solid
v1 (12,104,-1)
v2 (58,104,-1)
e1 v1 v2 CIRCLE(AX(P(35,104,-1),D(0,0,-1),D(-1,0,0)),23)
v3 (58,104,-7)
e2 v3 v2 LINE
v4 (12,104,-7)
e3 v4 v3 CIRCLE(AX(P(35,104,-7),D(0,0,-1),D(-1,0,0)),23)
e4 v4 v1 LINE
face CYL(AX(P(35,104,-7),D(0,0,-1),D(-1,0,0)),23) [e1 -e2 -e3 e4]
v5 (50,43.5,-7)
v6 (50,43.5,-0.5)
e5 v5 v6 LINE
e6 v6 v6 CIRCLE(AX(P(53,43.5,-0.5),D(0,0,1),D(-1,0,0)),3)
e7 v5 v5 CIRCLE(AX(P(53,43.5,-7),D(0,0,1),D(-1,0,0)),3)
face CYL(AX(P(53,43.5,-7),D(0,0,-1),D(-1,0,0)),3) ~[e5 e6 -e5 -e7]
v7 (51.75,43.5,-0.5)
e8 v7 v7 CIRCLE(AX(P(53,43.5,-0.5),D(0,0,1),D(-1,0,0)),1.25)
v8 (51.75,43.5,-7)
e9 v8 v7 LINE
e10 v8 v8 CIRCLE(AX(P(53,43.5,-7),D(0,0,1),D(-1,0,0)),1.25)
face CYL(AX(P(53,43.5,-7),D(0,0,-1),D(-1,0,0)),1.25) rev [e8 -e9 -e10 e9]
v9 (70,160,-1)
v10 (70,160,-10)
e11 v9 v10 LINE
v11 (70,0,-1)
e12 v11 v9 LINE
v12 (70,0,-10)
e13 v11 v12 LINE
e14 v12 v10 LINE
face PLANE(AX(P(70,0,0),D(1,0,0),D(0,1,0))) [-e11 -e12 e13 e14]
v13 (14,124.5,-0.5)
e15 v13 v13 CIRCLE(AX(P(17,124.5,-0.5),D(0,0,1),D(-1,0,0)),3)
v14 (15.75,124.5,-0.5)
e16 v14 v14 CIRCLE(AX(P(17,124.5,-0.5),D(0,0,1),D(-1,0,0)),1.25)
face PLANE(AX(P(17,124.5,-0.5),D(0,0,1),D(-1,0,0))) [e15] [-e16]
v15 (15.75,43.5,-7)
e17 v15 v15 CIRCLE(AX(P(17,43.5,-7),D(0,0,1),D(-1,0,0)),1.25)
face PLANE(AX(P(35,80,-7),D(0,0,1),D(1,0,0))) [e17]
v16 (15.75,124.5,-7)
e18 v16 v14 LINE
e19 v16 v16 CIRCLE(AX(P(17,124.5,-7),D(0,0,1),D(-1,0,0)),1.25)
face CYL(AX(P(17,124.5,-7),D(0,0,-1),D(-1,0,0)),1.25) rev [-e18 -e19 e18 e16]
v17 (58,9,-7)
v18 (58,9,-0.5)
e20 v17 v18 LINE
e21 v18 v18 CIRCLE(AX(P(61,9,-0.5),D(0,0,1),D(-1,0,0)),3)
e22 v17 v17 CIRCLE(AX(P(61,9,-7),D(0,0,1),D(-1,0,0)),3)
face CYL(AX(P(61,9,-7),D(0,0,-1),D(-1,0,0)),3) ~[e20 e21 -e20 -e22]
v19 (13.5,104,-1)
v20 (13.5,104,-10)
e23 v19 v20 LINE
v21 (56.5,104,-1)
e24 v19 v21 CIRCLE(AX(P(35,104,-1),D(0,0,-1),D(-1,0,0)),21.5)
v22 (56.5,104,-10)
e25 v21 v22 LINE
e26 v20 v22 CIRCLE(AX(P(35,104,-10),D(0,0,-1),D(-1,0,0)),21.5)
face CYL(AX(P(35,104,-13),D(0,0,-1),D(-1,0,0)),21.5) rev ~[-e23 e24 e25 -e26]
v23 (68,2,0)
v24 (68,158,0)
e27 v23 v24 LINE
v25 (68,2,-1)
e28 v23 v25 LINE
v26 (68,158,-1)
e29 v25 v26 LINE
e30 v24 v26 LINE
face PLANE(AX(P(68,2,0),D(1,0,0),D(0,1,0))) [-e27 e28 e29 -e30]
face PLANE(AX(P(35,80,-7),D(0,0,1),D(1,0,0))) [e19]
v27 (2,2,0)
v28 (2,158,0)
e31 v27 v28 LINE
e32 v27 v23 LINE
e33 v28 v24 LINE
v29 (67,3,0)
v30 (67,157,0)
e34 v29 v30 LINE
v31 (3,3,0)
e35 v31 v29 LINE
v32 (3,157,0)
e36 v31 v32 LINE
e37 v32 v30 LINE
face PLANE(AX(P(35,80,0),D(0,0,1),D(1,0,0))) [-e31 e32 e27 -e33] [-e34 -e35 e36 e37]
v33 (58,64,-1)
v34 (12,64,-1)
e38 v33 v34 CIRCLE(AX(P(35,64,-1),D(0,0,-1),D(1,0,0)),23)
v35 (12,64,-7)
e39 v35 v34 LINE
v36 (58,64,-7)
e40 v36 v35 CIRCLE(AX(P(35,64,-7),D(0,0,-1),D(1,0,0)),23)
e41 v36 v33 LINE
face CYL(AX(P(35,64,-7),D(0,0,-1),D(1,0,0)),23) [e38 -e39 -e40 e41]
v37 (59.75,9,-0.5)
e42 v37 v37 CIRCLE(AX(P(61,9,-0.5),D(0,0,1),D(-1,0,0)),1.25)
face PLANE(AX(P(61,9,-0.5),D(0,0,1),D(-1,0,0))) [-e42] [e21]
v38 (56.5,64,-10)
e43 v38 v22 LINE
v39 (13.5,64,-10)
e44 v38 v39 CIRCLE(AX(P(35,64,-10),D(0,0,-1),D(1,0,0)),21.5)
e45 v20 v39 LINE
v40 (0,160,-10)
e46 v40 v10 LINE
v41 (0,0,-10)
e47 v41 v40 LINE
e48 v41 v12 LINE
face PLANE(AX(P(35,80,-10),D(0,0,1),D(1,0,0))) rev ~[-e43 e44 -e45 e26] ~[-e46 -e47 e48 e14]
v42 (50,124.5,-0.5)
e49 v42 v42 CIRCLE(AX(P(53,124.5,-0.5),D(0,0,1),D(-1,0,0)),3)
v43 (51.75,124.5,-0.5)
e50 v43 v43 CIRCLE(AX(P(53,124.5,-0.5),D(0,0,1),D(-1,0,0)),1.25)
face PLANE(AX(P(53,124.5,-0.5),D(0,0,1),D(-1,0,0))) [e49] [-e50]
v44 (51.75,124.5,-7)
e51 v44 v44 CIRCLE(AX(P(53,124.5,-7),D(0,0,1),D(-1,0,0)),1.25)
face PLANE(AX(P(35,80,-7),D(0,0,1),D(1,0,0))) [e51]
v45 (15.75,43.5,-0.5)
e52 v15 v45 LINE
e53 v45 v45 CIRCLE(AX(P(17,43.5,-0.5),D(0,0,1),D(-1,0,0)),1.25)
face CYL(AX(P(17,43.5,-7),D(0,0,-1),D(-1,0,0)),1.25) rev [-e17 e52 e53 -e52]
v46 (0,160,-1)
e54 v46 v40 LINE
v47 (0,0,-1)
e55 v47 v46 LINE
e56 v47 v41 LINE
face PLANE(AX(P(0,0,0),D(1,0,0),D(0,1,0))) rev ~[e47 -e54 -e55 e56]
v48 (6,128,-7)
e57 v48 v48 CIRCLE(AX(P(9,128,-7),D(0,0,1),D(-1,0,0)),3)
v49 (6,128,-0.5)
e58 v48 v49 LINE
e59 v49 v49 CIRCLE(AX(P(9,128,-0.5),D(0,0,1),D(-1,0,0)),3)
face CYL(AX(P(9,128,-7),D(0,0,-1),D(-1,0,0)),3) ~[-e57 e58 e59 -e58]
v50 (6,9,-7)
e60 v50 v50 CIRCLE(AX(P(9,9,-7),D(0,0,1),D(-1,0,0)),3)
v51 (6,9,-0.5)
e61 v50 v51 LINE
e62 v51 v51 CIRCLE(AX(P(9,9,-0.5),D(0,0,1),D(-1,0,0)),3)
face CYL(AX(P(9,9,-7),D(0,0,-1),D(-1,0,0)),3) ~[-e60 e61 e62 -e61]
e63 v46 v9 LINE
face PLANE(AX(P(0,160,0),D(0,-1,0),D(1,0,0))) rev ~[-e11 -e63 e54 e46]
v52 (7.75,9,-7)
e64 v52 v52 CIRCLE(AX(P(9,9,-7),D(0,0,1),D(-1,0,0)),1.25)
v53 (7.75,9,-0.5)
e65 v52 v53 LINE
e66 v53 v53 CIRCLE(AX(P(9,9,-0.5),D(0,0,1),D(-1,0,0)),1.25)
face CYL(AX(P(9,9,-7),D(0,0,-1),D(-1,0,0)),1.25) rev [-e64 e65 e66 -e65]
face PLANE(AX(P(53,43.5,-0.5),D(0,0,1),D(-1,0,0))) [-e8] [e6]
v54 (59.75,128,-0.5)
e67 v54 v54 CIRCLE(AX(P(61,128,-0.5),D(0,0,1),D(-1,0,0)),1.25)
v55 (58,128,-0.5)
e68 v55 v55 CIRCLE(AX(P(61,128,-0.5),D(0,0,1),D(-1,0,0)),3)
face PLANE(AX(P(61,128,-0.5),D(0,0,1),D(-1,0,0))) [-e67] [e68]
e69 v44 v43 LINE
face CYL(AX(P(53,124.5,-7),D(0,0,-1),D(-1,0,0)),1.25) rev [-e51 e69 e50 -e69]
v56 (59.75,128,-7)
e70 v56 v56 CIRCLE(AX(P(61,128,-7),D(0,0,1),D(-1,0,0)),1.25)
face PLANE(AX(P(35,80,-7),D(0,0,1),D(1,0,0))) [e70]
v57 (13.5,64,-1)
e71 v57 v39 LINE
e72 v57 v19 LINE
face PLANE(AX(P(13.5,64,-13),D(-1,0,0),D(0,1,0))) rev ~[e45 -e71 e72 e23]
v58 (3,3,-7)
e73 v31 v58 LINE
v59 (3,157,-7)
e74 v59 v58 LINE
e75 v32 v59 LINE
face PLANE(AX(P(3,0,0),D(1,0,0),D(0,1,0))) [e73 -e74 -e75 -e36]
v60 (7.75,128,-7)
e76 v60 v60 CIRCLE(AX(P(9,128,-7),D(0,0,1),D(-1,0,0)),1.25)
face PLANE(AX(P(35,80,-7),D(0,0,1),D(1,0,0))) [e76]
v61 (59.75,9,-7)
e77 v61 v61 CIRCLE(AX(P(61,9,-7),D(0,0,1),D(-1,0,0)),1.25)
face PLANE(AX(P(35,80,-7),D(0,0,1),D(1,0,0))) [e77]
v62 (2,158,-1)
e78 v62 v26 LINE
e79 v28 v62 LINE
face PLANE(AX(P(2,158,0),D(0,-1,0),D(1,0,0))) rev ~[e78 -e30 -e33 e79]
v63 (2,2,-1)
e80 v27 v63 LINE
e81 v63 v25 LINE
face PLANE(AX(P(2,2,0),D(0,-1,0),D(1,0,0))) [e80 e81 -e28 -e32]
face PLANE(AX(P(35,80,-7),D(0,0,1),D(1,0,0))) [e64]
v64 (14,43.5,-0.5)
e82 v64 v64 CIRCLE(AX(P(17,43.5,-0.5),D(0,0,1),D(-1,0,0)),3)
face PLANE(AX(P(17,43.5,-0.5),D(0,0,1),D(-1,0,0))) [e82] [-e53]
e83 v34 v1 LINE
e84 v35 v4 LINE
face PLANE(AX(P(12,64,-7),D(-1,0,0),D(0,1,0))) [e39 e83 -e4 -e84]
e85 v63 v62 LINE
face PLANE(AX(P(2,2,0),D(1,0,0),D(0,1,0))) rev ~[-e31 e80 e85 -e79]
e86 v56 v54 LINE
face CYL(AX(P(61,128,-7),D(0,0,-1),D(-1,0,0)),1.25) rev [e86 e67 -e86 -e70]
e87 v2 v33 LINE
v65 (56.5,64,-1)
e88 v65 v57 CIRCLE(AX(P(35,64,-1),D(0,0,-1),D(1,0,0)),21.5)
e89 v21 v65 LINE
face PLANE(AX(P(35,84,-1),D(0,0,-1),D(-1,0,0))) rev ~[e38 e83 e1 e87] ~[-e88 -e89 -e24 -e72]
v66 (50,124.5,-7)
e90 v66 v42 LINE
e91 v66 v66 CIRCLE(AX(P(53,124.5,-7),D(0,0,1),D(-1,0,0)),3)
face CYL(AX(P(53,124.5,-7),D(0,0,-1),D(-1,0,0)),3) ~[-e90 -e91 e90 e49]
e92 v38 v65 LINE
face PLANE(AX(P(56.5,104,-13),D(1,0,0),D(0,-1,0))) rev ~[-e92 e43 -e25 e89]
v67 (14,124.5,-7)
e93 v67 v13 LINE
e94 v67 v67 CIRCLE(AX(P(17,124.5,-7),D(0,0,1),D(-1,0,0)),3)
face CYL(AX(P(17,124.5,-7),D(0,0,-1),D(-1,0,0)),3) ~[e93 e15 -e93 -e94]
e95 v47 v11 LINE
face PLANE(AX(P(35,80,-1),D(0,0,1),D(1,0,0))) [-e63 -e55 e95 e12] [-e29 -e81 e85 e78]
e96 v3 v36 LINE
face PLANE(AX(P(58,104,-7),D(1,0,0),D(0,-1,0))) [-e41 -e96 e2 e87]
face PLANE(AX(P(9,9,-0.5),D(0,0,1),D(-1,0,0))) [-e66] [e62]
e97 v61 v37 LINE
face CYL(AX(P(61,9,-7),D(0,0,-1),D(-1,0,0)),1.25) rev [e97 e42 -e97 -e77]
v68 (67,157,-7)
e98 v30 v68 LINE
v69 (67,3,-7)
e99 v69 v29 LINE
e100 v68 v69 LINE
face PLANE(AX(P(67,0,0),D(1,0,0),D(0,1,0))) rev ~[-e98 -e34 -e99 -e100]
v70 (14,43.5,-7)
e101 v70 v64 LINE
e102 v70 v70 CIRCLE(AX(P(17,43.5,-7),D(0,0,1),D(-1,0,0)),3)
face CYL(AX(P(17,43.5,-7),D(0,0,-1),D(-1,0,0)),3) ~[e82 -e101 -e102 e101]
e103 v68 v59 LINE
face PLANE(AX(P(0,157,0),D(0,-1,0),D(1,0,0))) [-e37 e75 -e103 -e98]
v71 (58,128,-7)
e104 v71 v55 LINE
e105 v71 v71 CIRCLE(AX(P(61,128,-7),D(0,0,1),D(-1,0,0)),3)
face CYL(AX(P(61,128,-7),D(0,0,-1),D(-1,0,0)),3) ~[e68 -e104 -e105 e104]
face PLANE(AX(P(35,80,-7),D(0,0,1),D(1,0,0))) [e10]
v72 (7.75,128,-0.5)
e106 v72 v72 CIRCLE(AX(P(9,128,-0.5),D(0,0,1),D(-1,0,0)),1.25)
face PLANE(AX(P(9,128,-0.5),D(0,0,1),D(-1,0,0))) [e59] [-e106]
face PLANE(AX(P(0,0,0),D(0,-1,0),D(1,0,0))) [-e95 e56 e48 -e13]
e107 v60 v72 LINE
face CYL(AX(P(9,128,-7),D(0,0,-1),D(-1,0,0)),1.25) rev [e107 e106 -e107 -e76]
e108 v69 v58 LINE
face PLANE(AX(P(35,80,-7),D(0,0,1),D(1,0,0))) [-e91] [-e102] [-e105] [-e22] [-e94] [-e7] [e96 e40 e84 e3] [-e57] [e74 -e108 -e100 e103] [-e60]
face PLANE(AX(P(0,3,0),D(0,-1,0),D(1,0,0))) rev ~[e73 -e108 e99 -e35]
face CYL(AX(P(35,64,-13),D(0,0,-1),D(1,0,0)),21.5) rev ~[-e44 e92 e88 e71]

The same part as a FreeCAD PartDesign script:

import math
import FreeCAD as App
import Part
import Sketcher
from FreeCAD import Vector
Q = App.Units.Quantity


def faces_at(feature, points):
    """Names of the faces that lie closest to the given points."""
    faces = feature.Shape.Faces
    near = lambda p: min(range(len(faces)), key=lambda i: faces[i].distToShape(Part.Vertex(*p))[0])
    return sorted({f"Face{near(p) + 1}" for p in points})


def add_polygon(sketch, points):
    """Adds a closed chain of lines whose ends are joined by coincident constraints."""
    first, n = sketch.GeometryCount, len(points)
    for a, b in zip(points, points[1:] + points[:1]):
        sketch.addGeometry(Part.LineSegment(App.Vector(*a, 0), App.Vector(*b, 0)), False)
    for i in range(n):
        sketch.addConstraint(Sketcher.Constraint("Coincident", first + i, 2, first + (i + 1) % n, 1))

doc = App.newDocument("Part")
params = doc.addObject("Spreadsheet::Sheet", "Params")
for row, (alias, value) in enumerate([
    ("sketch1_width", "70 mm"),
    ("sketch1_height", "160 mm"),
    ("pad1_length", "10 mm"),
    ("thickness_wall", "3 mm"),
    ("sketch2_width", "70 mm"),
    ("sketch2_width2", "66 mm"),
    ("sketch2_height", "160 mm"),
    ("sketch2_height2", "156 mm"),
    ("pocket1_length", "1 mm"),
    ("sketch3_radius", "23 mm"),
    ("sketch3_radius2", "21.5 mm"),
    ("sketch3_height", "40 mm"),
    ("pad2_length", "6 mm"),
    ("sketch4_radius", "21.5 mm"),
    ("sketch4_height", "40 mm"),
    ("pocket2_length", "6 mm"),
    ("sketch5_diameter", "6 mm"),
    ("sketch5_diameter2", "2.5 mm"),
    ("pad3_length", "6.5 mm"),
    ("sketch6_diameter", "6 mm"),
    ("sketch6_diameter2", "2.5 mm"),
    ("pad4_length", "6.5 mm"),
], start=1):
    params.set(f"A{row}", alias)
    params.set(f"B{row}", "=" + value)
    params.setAlias(f"B{row}", alias)

body = doc.addObject("PartDesign::Body", "Body")

sketch1 = body.newObject("Sketcher::SketchObject", "Sketch")
sketch1.AttachmentSupport = (doc.getObject("XY_Plane"), [""])
sketch1.MapMode = "FlatFace"
add_polygon(sketch1, [(0, 160), (0, 0), (70, 0), (70, 160)])
sketch1.addConstraint([
    Sketcher.Constraint("Vertical", 0),
    Sketcher.Constraint("Horizontal", 1),
    Sketcher.Constraint("Vertical", 2),
    Sketcher.Constraint("Horizontal", 3),
    Sketcher.Constraint("Coincident", 0, 2, -1, 1),
    Sketcher.Constraint("DistanceX", 1, 1, 1, 2, Q("70 mm")),
    Sketcher.Constraint("DistanceY", 0, 2, 0, 1, Q("160 mm")),
])
sketch1.setExpression("Constraints[9]", "Params.sketch1_width")
sketch1.setExpression("Constraints[10]", "Params.sketch1_height")
pad1 = body.newObject("PartDesign::Pad", "Pad")
pad1.Profile = sketch1
pad1.setExpression("Length", "Params.pad1_length")
pad1.Reversed = True
doc.recompute()

thickness = body.newObject("PartDesign::Thickness", "Thickness")
thickness.Base = (pad1, faces_at(pad1, [(35, 80, 0)]))
thickness.setExpression("Value", "Params.thickness_wall")
thickness.Reversed = True
thickness.Join = "Intersection"

sketch2 = body.newObject("Sketcher::SketchObject", "Sketch001")
sketch2.AttachmentSupport = (doc.getObject("XY_Plane"), [""])
sketch2.MapMode = "FlatFace"
add_polygon(sketch2, [(0, 160), (0, 0), (70, 0), (70, 160)])
add_polygon(sketch2, [(68, 2), (2, 2), (2, 158), (68, 158)])
sketch2.addConstraint([
    Sketcher.Constraint("Vertical", 0),
    Sketcher.Constraint("Horizontal", 1),
    Sketcher.Constraint("Vertical", 2),
    Sketcher.Constraint("Horizontal", 3),
    Sketcher.Constraint("Horizontal", 4),
    Sketcher.Constraint("Vertical", 5),
    Sketcher.Constraint("Horizontal", 6),
    Sketcher.Constraint("Vertical", 7),
    Sketcher.Constraint("Coincident", 0, 2, -1, 1),
    Sketcher.Constraint("DistanceX", 1, 1, 1, 2, Q("70 mm")),
    Sketcher.Constraint("DistanceX", 4, 2, 4, 1, Q("66 mm")),
    Sketcher.Constraint("DistanceY", 0, 2, 0, 1, Q("160 mm")),
    Sketcher.Constraint("DistanceY", 5, 1, 5, 2, Q("156 mm")),
    Sketcher.Constraint("DistanceX", -1, 1, 4, 2, Q("2 mm")),
    Sketcher.Constraint("DistanceY", -1, 1, 4, 2, Q("2 mm")),
])
sketch2.setExpression("Constraints[17]", "Params.sketch2_width")
sketch2.setExpression("Constraints[18]", "Params.sketch2_width2")
sketch2.setExpression("Constraints[19]", "Params.sketch2_height")
sketch2.setExpression("Constraints[20]", "Params.sketch2_height2")
pocket1 = body.newObject("PartDesign::Pocket", "Pocket")
pocket1.Profile = sketch2
pocket1.setExpression("Length", "Params.pocket1_length")

sketch3 = body.newObject("Sketcher::SketchObject", "Sketch002")
sketch3.AttachmentSupport = (doc.getObject("XY_Plane"), [""])
sketch3.MapMode = "FlatFace"
sketch3.AttachmentOffset = App.Placement(Vector(0, 0, -7), App.Rotation())
sketch3.addGeometry([
    Part.LineSegment(Vector(58, 64, 0), Vector(58, 104, 0)),
    Part.ArcOfCircle(Part.Circle(Vector(35, 104, 0), Vector(0, 0, 1), 23), math.radians(0), math.radians(180)),
    Part.LineSegment(Vector(12, 104, 0), Vector(12, 64, 0)),
    Part.ArcOfCircle(Part.Circle(Vector(35, 64, 0), Vector(0, 0, 1), 23), math.radians(180), math.radians(360)),
    Part.LineSegment(Vector(56.5, 104, 0), Vector(56.5, 64, 0)),
    Part.ArcOfCircle(Part.Circle(Vector(35, 64, 0), Vector(0, 0, 1), 21.5), math.radians(180), math.radians(360)),
    Part.LineSegment(Vector(13.5, 64, 0), Vector(13.5, 104, 0)),
    Part.ArcOfCircle(Part.Circle(Vector(35, 104, 0), Vector(0, 0, 1), 21.5), math.radians(0), math.radians(180)),
], False)
sketch3.addConstraint([
    Sketcher.Constraint("Tangent", 0, 2, 1, 1),
    Sketcher.Constraint("Tangent", 1, 2, 2, 1),
    Sketcher.Constraint("Tangent", 2, 2, 3, 1),
    Sketcher.Constraint("Tangent", 3, 2, 0, 1),
    Sketcher.Constraint("Tangent", 4, 2, 5, 2),
    Sketcher.Constraint("Tangent", 5, 1, 6, 1),
    Sketcher.Constraint("Tangent", 6, 2, 7, 2),
    Sketcher.Constraint("Tangent", 7, 1, 4, 1),
    Sketcher.Constraint("Vertical", 0),
    Sketcher.Constraint("Vertical", 2),
    Sketcher.Constraint("Vertical", 4),
    Sketcher.Constraint("Vertical", 6),
    Sketcher.Constraint("Coincident", 5, 3, 3, 3),
    Sketcher.Constraint("Horizontal", 7, 3, 0, 2),
    Sketcher.Constraint("Radius", 1, Q("23 mm")),
    Sketcher.Constraint("Radius", 5, Q("21.5 mm")),
    Sketcher.Constraint("DistanceY", 0, 1, 0, 2, Q("40 mm")),
    Sketcher.Constraint("DistanceX", -1, 1, 1, 3, Q("35 mm")),
    Sketcher.Constraint("DistanceY", -1, 1, 1, 3, Q("104 mm")),
])
sketch3.setExpression("Constraints[14]", "Params.sketch3_radius")
sketch3.setExpression("Constraints[15]", "Params.sketch3_radius2")
sketch3.setExpression("Constraints[16]", "Params.sketch3_height")
pad2 = body.newObject("PartDesign::Pad", "Pad001")
pad2.Profile = sketch3
pad2.setExpression("Length", "Params.pad2_length")

sketch4 = body.newObject("Sketcher::SketchObject", "Sketch003")
sketch4.AttachmentSupport = (doc.getObject("XY_Plane"), [""])
sketch4.MapMode = "FlatFace"
sketch4.AttachmentOffset = App.Placement(Vector(0, 0, -13), App.Rotation())
sketch4.addGeometry([
    Part.LineSegment(Vector(56.5, 64, 0), Vector(56.5, 104, 0)),
    Part.ArcOfCircle(Part.Circle(Vector(35, 104, 0), Vector(0, 0, 1), 21.5), math.radians(0), math.radians(180)),
    Part.LineSegment(Vector(13.5, 104, 0), Vector(13.5, 64, 0)),
    Part.ArcOfCircle(Part.Circle(Vector(35, 64, 0), Vector(0, 0, 1), 21.5), math.radians(180), math.radians(360)),
], False)
sketch4.addConstraint([
    Sketcher.Constraint("Tangent", 0, 2, 1, 1),
    Sketcher.Constraint("Tangent", 1, 2, 2, 1),
    Sketcher.Constraint("Tangent", 2, 2, 3, 1),
    Sketcher.Constraint("Tangent", 3, 2, 0, 1),
    Sketcher.Constraint("Vertical", 0),
    Sketcher.Constraint("Vertical", 2),
    Sketcher.Constraint("Radius", 1, Q("21.5 mm")),
    Sketcher.Constraint("DistanceY", 0, 1, 0, 2, Q("40 mm")),
    Sketcher.Constraint("DistanceX", -1, 1, 1, 3, Q("35 mm")),
    Sketcher.Constraint("DistanceY", -1, 1, 1, 3, Q("104 mm")),
])
sketch4.setExpression("Constraints[6]", "Params.sketch4_radius")
sketch4.setExpression("Constraints[7]", "Params.sketch4_height")
pocket2 = body.newObject("PartDesign::Pocket", "Pocket001")
pocket2.Profile = sketch4
pocket2.setExpression("Length", "Params.pocket2_length")
pocket2.Reversed = True

sketch5 = body.newObject("Sketcher::SketchObject", "Sketch004")
sketch5.AttachmentSupport = (doc.getObject("XY_Plane"), [""])
sketch5.MapMode = "FlatFace"
sketch5.AttachmentOffset = App.Placement(Vector(0, 0, -7), App.Rotation())
sketch5.addGeometry([
    Part.Circle(Vector(17, 124.5, 0), Vector(0, 0, 1), 3),
    Part.Circle(Vector(17, 124.5, 0), Vector(0, 0, 1), 1.25),
    Part.Circle(Vector(53, 124.5, 0), Vector(0, 0, 1), 3),
    Part.Circle(Vector(53, 124.5, 0), Vector(0, 0, 1), 1.25),
    Part.Circle(Vector(17, 43.5, 0), Vector(0, 0, 1), 3),
    Part.Circle(Vector(17, 43.5, 0), Vector(0, 0, 1), 1.25),
    Part.Circle(Vector(53, 43.5, 0), Vector(0, 0, 1), 3),
    Part.Circle(Vector(53, 43.5, 0), Vector(0, 0, 1), 1.25),
], False)
sketch5.addConstraint([
    Sketcher.Constraint("Coincident", 1, 3, 0, 3),
    Sketcher.Constraint("Coincident", 3, 3, 2, 3),
    Sketcher.Constraint("Coincident", 5, 3, 4, 3),
    Sketcher.Constraint("Coincident", 7, 3, 6, 3),
    Sketcher.Constraint("Equal", 0, 2),
    Sketcher.Constraint("Equal", 1, 3),
    Sketcher.Constraint("Equal", 2, 4),
    Sketcher.Constraint("Equal", 3, 5),
    Sketcher.Constraint("Equal", 4, 6),
    Sketcher.Constraint("Equal", 5, 7),
    Sketcher.Constraint("Horizontal", 1, 3, 2, 3),
    Sketcher.Constraint("Horizontal", 5, 3, 6, 3),
    Sketcher.Constraint("Vertical", 1, 3, 4, 3),
    Sketcher.Constraint("Vertical", 3, 3, 6, 3),
    Sketcher.Constraint("Diameter", 0, Q("6 mm")),
    Sketcher.Constraint("Diameter", 1, Q("2.5 mm")),
    Sketcher.Constraint("DistanceX", -1, 1, 0, 3, Q("17 mm")),
    Sketcher.Constraint("DistanceX", -1, 1, 2, 3, Q("53 mm")),
    Sketcher.Constraint("DistanceY", 4, 3, 0, 3, Q("81 mm")),
    Sketcher.Constraint("DistanceY", -1, 1, 0, 3, Q("124.5 mm")),
])
sketch5.setExpression("Constraints[14]", "Params.sketch5_diameter")
sketch5.setExpression("Constraints[15]", "Params.sketch5_diameter2")
pad3 = body.newObject("PartDesign::Pad", "Pad002")
pad3.Profile = sketch5
pad3.setExpression("Length", "Params.pad3_length")

sketch6 = body.newObject("Sketcher::SketchObject", "Sketch005")
sketch6.AttachmentSupport = (doc.getObject("XY_Plane"), [""])
sketch6.MapMode = "FlatFace"
sketch6.AttachmentOffset = App.Placement(Vector(0, 0, -7), App.Rotation())
sketch6.addGeometry([
    Part.Circle(Vector(9, 9, 0), Vector(0, 0, 1), 3),
    Part.Circle(Vector(9, 9, 0), Vector(0, 0, 1), 1.25),
    Part.Circle(Vector(61, 9, 0), Vector(0, 0, 1), 3),
    Part.Circle(Vector(61, 9, 0), Vector(0, 0, 1), 1.25),
    Part.Circle(Vector(9, 128, 0), Vector(0, 0, 1), 3),
    Part.Circle(Vector(9, 128, 0), Vector(0, 0, 1), 1.25),
    Part.Circle(Vector(61, 128, 0), Vector(0, 0, 1), 3),
    Part.Circle(Vector(61, 128, 0), Vector(0, 0, 1), 1.25),
], False)
sketch6.addConstraint([
    Sketcher.Constraint("Coincident", 1, 3, 0, 3),
    Sketcher.Constraint("Coincident", 3, 3, 2, 3),
    Sketcher.Constraint("Coincident", 5, 3, 4, 3),
    Sketcher.Constraint("Coincident", 7, 3, 6, 3),
    Sketcher.Constraint("Equal", 0, 2),
    Sketcher.Constraint("Equal", 1, 3),
    Sketcher.Constraint("Equal", 2, 4),
    Sketcher.Constraint("Equal", 3, 5),
    Sketcher.Constraint("Equal", 4, 6),
    Sketcher.Constraint("Equal", 5, 7),
    Sketcher.Constraint("Horizontal", 1, 3, 2, 3),
    Sketcher.Constraint("Horizontal", 5, 3, 6, 3),
    Sketcher.Constraint("Vertical", 1, 3, 4, 3),
    Sketcher.Constraint("Vertical", 3, 3, 6, 3),
    Sketcher.Constraint("Diameter", 0, Q("6 mm")),
    Sketcher.Constraint("Diameter", 1, Q("2.5 mm")),
    Sketcher.Constraint("DistanceX", -1, 1, 0, 3, Q("9 mm")),
    Sketcher.Constraint("DistanceY", -1, 1, 0, 3, Q("9 mm")),
    Sketcher.Constraint("DistanceX", -1, 1, 2, 3, Q("61 mm")),
    Sketcher.Constraint("DistanceY", -1, 1, 4, 3, Q("128 mm")),
])
sketch6.setExpression("Constraints[14]", "Params.sketch6_diameter")
sketch6.setExpression("Constraints[15]", "Params.sketch6_diameter2")
pad4 = body.newObject("PartDesign::Pad", "Pad003")
pad4.Profile = sketch6
pad4.setExpression("Length", "Params.pad4_length")

doc.recompute()
